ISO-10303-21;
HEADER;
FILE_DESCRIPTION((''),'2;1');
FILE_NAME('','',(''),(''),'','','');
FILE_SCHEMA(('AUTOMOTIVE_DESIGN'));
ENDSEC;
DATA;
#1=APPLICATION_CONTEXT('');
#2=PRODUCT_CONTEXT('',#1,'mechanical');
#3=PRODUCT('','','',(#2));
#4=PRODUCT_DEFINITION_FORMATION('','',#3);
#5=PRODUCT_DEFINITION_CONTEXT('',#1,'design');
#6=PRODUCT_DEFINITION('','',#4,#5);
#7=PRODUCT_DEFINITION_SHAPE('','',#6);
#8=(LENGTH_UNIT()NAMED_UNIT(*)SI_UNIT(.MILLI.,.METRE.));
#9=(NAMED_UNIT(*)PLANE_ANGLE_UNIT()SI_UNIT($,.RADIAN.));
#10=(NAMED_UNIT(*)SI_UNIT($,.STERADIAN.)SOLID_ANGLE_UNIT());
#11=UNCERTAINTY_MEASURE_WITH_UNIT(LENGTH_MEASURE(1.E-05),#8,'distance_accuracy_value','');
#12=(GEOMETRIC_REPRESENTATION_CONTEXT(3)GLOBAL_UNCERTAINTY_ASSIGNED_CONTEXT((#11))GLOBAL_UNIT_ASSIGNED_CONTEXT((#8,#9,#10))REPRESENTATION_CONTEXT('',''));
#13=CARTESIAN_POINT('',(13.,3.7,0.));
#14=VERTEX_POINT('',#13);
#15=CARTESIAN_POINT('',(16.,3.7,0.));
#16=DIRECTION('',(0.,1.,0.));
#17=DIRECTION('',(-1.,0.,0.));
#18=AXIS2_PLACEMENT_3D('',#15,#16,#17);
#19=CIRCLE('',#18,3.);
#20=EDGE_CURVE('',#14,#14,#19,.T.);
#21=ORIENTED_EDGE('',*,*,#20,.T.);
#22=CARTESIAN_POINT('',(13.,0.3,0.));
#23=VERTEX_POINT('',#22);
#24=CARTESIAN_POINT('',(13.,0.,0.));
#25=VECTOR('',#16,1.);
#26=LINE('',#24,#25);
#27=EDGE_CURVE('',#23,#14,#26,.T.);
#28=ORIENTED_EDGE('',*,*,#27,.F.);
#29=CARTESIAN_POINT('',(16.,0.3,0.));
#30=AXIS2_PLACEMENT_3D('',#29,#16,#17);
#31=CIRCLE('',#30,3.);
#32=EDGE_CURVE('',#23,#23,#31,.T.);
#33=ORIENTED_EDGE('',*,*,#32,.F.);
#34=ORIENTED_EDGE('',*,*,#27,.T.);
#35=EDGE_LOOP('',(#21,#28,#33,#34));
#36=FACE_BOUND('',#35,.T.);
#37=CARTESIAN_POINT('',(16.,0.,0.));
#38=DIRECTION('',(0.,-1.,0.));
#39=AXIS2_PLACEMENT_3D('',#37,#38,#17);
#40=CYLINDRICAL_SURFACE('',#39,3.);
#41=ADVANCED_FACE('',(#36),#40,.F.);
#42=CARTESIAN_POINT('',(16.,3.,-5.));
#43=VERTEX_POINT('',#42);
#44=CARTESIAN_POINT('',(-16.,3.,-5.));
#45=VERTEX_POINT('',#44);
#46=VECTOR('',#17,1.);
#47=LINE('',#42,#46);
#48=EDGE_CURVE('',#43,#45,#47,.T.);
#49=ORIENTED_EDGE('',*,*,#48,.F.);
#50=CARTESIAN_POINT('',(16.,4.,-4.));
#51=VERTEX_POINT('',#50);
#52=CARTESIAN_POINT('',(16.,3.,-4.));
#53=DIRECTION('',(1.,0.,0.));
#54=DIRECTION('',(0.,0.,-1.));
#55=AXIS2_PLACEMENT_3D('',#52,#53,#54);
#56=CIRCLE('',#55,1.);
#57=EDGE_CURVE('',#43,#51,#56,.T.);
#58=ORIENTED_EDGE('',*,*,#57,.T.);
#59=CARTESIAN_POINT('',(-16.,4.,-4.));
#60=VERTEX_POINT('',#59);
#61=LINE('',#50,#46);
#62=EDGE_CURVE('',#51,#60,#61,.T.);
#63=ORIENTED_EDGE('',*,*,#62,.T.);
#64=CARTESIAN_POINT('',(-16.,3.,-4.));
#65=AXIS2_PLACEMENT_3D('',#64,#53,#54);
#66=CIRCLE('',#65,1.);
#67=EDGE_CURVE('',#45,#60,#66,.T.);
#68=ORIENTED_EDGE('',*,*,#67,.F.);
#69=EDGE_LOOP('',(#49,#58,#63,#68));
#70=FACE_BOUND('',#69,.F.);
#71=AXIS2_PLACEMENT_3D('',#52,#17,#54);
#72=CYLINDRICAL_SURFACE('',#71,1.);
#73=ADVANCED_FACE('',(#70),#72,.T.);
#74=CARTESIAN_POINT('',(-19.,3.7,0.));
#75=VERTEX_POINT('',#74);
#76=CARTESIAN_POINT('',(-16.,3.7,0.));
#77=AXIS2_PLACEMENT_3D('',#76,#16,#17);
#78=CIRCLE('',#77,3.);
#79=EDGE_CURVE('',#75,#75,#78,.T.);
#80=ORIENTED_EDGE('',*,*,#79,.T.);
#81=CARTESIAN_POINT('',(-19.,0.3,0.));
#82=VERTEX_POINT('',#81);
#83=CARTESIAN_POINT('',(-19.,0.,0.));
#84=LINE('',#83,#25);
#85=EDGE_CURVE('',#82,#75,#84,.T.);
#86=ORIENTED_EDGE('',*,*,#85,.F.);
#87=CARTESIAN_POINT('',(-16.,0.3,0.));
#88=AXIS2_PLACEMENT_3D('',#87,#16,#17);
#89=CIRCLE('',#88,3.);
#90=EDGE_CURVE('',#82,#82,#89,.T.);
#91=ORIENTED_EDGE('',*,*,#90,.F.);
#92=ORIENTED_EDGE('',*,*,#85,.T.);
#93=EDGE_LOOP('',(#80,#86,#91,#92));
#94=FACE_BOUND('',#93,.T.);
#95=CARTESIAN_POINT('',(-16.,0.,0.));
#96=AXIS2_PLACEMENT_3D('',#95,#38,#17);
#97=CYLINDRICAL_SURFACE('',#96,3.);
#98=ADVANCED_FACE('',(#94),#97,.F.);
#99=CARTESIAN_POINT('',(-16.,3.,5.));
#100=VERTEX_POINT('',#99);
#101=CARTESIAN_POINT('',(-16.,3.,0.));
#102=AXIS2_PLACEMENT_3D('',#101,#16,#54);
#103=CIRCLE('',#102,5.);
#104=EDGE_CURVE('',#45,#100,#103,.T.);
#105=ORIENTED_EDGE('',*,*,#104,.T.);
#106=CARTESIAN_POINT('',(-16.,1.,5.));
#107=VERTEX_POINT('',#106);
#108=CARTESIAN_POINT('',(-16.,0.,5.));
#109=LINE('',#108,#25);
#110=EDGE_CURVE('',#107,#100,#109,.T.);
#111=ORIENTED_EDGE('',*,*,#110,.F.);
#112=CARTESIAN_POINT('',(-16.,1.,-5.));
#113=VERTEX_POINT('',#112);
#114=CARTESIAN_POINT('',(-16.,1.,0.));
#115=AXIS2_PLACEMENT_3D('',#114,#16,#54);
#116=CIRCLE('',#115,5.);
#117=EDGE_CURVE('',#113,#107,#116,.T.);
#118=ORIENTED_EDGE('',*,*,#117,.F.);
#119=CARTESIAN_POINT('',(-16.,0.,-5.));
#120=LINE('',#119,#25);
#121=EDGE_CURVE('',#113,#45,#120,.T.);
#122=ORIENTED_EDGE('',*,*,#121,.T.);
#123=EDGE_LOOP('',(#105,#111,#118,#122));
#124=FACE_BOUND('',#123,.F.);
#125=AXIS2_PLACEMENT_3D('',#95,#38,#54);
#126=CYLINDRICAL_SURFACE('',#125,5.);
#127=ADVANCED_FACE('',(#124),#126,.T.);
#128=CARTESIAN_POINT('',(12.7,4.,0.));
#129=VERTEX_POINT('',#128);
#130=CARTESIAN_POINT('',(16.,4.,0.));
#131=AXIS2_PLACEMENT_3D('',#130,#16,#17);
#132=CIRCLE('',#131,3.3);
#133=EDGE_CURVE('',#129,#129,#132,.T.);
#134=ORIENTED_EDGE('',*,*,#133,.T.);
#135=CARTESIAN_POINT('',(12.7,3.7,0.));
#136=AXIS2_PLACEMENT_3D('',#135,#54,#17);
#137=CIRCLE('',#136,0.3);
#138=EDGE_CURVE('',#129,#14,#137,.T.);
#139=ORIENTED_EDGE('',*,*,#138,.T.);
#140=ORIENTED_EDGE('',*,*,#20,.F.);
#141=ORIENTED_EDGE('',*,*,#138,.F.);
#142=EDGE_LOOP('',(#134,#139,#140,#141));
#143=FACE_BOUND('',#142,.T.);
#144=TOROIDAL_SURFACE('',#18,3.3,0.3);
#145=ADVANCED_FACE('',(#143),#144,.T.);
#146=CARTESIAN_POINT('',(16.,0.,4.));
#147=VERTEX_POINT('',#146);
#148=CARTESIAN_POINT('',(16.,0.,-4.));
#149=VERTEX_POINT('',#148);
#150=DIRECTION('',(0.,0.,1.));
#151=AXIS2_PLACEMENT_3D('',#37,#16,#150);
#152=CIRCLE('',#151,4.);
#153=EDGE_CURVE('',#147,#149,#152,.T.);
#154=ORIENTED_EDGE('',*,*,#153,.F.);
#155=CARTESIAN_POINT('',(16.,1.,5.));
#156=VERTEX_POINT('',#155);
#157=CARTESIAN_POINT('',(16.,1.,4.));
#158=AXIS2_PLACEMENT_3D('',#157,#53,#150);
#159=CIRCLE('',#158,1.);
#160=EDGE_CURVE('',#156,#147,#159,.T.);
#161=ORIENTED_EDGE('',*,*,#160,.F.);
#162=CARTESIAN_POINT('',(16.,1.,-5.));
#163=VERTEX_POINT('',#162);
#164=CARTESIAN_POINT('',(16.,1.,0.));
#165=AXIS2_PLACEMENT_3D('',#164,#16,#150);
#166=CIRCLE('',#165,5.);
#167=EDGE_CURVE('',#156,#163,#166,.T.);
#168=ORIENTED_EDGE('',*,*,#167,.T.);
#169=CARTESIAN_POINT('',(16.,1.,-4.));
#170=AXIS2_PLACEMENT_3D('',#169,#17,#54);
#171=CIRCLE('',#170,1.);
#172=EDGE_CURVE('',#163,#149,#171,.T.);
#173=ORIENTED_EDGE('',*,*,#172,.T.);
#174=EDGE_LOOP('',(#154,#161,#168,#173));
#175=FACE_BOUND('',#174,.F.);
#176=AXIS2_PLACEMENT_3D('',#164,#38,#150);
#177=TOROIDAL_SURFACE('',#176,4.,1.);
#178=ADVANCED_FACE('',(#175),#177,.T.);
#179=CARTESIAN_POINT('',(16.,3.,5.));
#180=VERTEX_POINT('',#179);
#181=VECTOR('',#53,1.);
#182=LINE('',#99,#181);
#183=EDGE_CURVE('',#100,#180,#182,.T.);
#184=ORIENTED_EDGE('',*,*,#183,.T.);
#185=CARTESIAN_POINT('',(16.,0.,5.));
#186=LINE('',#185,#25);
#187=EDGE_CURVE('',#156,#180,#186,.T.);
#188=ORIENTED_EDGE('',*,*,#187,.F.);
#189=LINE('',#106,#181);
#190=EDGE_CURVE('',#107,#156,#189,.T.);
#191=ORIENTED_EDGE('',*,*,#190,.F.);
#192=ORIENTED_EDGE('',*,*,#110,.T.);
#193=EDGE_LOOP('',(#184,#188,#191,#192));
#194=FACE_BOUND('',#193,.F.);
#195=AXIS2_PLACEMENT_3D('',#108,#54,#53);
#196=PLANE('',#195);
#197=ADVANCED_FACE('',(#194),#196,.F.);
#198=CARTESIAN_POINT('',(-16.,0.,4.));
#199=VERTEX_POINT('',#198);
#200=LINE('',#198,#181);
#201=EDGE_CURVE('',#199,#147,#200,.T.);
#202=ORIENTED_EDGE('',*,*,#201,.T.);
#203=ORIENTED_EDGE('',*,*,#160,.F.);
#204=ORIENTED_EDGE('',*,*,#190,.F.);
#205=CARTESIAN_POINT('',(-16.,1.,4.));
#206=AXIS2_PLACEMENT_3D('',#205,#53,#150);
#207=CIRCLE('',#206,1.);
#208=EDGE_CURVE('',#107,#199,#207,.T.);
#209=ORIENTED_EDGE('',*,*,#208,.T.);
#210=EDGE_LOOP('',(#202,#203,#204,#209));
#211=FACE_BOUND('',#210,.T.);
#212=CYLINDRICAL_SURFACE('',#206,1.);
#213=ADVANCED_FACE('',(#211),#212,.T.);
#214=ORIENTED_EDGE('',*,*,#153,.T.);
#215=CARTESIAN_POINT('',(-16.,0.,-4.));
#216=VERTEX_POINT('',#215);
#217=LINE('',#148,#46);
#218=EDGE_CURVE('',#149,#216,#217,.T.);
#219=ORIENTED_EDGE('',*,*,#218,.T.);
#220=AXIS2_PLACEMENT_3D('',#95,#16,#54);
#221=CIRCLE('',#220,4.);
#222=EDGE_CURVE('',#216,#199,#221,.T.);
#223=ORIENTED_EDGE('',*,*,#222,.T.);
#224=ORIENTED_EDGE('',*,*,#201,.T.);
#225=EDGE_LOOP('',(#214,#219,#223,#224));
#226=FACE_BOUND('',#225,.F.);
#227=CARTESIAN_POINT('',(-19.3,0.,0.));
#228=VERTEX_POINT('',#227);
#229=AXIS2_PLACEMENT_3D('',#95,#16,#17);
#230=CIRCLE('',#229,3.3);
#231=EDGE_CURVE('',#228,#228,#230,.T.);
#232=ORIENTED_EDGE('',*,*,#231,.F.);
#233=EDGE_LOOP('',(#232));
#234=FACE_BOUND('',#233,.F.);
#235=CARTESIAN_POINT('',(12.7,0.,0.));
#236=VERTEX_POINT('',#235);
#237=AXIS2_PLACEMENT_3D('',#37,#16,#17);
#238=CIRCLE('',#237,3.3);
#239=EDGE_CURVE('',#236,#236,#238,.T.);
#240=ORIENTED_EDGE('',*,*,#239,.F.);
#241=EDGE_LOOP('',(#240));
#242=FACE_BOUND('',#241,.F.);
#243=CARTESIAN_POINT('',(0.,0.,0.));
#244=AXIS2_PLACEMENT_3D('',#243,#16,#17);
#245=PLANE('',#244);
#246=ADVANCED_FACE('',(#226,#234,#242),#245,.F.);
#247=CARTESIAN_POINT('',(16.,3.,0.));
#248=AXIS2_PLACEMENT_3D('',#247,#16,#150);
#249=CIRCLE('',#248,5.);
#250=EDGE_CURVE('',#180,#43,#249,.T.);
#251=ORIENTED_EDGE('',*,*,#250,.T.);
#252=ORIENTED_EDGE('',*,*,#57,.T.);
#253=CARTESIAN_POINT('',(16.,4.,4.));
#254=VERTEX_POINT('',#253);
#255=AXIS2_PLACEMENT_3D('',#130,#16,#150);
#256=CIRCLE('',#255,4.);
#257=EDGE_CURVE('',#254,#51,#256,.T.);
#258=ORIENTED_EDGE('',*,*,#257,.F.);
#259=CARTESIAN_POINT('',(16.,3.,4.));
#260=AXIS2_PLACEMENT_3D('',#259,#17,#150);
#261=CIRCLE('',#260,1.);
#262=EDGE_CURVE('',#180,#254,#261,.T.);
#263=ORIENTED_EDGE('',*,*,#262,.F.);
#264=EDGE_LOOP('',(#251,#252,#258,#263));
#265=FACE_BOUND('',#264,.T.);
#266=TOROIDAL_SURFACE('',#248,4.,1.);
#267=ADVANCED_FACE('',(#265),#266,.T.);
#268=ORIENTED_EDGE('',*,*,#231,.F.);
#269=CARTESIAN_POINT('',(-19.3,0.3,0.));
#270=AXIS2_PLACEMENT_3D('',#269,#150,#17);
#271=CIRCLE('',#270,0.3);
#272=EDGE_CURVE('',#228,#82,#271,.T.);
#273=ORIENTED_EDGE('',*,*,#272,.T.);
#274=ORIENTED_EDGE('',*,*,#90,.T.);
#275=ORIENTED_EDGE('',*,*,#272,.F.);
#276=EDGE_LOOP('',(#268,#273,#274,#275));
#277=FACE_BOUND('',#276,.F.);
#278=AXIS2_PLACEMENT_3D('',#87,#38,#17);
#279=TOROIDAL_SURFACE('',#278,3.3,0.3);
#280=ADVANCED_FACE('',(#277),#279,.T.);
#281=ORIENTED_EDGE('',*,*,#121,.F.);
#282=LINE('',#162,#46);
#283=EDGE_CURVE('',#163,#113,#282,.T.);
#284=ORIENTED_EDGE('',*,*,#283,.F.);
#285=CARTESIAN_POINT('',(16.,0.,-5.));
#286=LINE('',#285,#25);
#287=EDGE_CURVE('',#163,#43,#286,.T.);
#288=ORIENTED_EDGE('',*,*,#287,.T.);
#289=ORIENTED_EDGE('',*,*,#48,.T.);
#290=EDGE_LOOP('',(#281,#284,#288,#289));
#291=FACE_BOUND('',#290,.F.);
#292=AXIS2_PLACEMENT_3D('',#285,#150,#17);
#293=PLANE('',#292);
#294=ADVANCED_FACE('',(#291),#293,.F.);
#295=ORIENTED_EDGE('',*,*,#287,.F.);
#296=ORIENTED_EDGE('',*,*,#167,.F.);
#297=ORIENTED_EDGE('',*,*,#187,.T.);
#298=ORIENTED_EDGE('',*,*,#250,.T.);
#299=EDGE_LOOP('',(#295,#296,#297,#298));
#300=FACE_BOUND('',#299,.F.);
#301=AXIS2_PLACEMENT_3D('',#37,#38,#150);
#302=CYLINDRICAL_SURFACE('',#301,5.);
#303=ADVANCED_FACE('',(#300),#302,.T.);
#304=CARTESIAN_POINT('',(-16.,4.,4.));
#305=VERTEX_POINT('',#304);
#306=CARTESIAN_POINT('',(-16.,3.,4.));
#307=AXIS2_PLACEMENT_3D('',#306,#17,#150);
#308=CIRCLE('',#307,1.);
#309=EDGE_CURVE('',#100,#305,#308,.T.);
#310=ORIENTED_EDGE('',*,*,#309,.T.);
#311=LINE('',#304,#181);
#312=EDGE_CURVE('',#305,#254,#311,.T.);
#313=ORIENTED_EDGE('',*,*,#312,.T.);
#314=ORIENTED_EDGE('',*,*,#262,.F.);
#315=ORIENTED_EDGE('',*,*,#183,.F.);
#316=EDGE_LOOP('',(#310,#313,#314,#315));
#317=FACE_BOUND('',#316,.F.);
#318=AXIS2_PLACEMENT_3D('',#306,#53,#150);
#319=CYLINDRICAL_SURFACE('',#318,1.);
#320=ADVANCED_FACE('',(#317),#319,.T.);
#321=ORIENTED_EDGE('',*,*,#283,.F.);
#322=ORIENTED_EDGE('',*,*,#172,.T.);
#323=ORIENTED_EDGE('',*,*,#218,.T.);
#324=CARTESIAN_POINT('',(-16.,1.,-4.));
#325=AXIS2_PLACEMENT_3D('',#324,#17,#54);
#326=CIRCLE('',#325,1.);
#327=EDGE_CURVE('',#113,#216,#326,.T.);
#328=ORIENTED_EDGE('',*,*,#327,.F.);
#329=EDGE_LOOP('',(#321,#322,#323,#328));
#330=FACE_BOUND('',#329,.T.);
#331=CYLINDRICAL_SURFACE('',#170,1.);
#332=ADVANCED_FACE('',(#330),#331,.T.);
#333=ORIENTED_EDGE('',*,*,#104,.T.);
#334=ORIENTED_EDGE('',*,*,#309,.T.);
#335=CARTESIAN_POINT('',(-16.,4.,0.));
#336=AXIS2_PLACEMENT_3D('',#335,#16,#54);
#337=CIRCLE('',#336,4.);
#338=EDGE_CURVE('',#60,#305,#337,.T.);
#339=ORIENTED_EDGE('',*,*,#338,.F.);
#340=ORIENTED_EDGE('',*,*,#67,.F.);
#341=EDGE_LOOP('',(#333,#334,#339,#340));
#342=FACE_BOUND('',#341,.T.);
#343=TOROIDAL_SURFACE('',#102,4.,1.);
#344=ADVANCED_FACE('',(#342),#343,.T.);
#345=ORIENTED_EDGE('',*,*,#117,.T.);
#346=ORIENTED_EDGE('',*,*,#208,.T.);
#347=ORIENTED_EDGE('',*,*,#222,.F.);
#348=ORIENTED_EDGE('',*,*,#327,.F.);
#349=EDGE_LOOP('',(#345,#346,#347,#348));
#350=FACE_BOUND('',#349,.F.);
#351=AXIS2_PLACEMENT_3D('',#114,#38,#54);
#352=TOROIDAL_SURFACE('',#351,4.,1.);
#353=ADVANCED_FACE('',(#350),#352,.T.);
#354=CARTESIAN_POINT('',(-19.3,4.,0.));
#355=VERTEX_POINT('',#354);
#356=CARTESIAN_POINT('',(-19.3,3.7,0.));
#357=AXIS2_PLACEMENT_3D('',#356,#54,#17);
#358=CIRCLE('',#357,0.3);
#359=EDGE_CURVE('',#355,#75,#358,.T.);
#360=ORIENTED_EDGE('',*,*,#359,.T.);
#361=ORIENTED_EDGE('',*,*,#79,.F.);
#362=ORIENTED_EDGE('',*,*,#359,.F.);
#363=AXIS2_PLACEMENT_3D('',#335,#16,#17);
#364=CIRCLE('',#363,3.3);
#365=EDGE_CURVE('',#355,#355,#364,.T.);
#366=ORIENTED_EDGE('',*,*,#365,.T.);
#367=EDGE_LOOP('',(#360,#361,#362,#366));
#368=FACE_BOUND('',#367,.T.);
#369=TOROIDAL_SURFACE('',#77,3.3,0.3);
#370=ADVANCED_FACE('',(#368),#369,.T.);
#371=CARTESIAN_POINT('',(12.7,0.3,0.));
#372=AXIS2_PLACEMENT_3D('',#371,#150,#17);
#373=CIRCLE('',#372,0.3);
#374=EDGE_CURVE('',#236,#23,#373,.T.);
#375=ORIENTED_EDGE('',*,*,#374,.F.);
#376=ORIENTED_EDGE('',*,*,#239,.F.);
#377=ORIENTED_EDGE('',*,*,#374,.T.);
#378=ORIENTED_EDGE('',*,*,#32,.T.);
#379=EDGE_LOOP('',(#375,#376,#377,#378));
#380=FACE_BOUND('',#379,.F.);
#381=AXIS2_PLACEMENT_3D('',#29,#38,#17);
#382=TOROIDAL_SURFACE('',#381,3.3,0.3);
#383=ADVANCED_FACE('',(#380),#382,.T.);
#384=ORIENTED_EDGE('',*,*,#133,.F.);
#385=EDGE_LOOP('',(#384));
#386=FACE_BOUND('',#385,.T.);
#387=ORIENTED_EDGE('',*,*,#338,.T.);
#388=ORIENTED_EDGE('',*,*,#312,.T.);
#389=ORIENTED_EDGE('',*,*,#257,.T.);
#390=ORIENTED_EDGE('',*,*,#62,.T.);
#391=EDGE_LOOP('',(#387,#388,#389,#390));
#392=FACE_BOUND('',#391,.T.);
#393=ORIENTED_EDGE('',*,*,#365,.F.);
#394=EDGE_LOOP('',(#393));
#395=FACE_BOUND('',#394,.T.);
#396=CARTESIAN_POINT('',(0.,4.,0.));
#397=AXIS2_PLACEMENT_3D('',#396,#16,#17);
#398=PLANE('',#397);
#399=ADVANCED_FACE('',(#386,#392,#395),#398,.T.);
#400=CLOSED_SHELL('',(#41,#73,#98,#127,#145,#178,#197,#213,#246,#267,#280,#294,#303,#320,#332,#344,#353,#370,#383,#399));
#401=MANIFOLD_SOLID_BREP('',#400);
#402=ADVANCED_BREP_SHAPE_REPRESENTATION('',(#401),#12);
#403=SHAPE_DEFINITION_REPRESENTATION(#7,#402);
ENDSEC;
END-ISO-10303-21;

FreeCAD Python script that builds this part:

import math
import FreeCAD as App
import Part
import Sketcher

V = App.Vector
Q = App.Units.Quantity


def edges_at(feature, points):
    """Names of the edges that pass closest to the given points."""
    edges = feature.Shape.Edges
    near = lambda p: min(range(len(edges)), key=lambda i: edges[i].distToShape(Part.Vertex(*p))[0])
    return sorted({f"Edge{near(p) + 1}" for p in points})

doc = App.newDocument("Part")
params = doc.addObject("Spreadsheet::Sheet", "Params")
for row, (alias, value) in enumerate([
    ("sketch1_diameter", "6 mm"),
    ("sketch1_radius", "5 mm"),
    ("sketch1_width", "32 mm"),
    ("pad1_length", "4 mm"),
    ("fillet_radius", "1 mm"),
    ("fillet2_radius", "0.3 mm"),
], start=1):
    params.set(f"A{row}", alias)
    params.set(f"B{row}", "=" + value)
    params.setAlias(f"B{row}", alias)

body = doc.addObject("PartDesign::Body", "Body")

# Sketch on XZ plane
sketch1 = doc.addObject("Sketcher::SketchObject", "Sketch")
body.addObject(sketch1)
sketch1.AttachmentSupport = (doc.XZ_Plane, [""])
sketch1.MapMode = "FlatFace"
sketch1.addGeometry([
    Part.ArcOfCircle(Part.Circle(V(-16, 0, 0), V(0, 0, 1), 5), math.radians(90), math.radians(270)),  # 0
    Part.LineSegment(V(-16, 5, 0), V(16, 5, 0)),  # 1
    Part.ArcOfCircle(Part.Circle(V(16, 0, 0), V(0, 0, 1), 5), math.radians(-90), math.radians(90)),  # 2
    Part.LineSegment(V(16, -5, 0), V(-16, -5, 0)),  # 3
    Part.Circle(V(16, 0, 0), V(0, 0, 1), 3),  # 4
    Part.Circle(V(-16, 0, 0), V(0, 0, 1), 3),  # 5
], False)
sketch1.addConstraint([
    Sketcher.Constraint("Tangent", 0, 1, 1, 1),
    Sketcher.Constraint("Tangent", 1, 2, 2, 2),
    Sketcher.Constraint("Tangent", 2, 1, 3, 1),
    Sketcher.Constraint("Tangent", 3, 2, 0, 2),
    Sketcher.Constraint("Horizontal", 1),
    Sketcher.Constraint("Horizontal", 3),
    Sketcher.Constraint("Coincident", 4, 3, 2, 3),
    Sketcher.Constraint("Coincident", 5, 3, 0, 3),
    Sketcher.Constraint("Equal", 4, 5),
    Sketcher.Constraint("Symmetric", 0, 3, 2, 3, -1, 1),
    Sketcher.Constraint("Diameter", 4, Q("6 mm")),
    Sketcher.Constraint("Radius", 0, Q("5 mm")),
    Sketcher.Constraint("DistanceX", 1, 1, 1, 2, Q("32 mm")),
])
sketch1.setExpression("Constraints[10]", "Params.sketch1_diameter")
sketch1.setExpression("Constraints[11]", "Params.sketch1_radius")
sketch1.setExpression("Constraints[12]", "Params.sketch1_width")
pad1 = doc.addObject("PartDesign::Pad", "Pad")
body.addObject(pad1)
pad1.Profile = sketch1
pad1.setExpression("Length", "Params.pad1_length")
pad1.Reversed = True
doc.recompute()

fillet = doc.addObject("PartDesign::Fillet", "Fillet")
body.addObject(fillet)
fillet.Base = (pad1, edges_at(pad1, [
    (21, 4, 0),
    (0, 4, -5),
    (-21, 4, 0),
    (0, 4, 5),
    (21, 0, 0),
    (0, 0, -5),
    (-21, 0, 0),
    (0, 0, 5),
]))
fillet.setExpression("Radius", "Params.fillet_radius")
doc.recompute()

fillet2 = doc.addObject("PartDesign::Fillet", "Fillet001")
body.addObject(fillet2)
fillet2.Base = (fillet, edges_at(fillet, [
    (-13, 0, 0),
    (-13, 4, 0),
    (19, 0, 0),
    (19, 4, 0),
]))
fillet2.setExpression("Radius", "Params.fillet2_radius")

doc.recompute()
